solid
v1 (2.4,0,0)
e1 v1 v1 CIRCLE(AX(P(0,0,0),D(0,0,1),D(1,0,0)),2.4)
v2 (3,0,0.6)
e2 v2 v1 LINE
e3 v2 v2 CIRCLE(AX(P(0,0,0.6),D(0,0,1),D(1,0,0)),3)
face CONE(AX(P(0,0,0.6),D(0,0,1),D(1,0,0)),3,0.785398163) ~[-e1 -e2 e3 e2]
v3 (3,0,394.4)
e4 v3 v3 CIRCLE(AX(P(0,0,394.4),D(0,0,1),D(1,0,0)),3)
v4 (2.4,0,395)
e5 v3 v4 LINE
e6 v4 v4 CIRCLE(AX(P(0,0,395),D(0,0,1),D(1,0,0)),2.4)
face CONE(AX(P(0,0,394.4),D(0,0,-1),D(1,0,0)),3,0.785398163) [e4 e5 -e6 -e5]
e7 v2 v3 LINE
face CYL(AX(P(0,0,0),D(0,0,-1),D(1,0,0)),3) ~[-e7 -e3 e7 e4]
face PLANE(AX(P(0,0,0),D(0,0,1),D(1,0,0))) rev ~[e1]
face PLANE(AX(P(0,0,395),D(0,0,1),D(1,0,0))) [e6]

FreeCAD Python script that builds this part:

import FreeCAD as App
import Part
import Sketcher

V = App.Vector
Q = App.Units.Quantity


def edges_at(feature, points):
    """Names of the edges that pass closest to the given points."""
    edges = feature.Shape.Edges
    near = lambda p: min(range(len(edges)), key=lambda i: edges[i].distToShape(Part.Vertex(*p))[0])
    return sorted({f"Edge{near(p) + 1}" for p in points})

doc = App.newDocument("Part")
body = doc.addObject("PartDesign::Body", "Body")

# Sketch on XY plane
sketch1 = body.newObject("Sketcher::SketchObject", "Sketch")
sketch1.AttachmentSupport = (doc.getObject("XY_Plane"), [""])
sketch1.MapMode = "FlatFace"
sketch1.addGeometry(Part.Circle(V(0, 0, 0), V(0, 0, 1), 3), False)
sketch1.addConstraint([
    Sketcher.Constraint("Coincident", 0, 3, -1, 1),
    Sketcher.Constraint("Diameter", 0, Q("6 mm")),
])
pad1 = body.newObject("PartDesign::Pad", "Pad")
pad1.Profile = sketch1
pad1.Length = 395
doc.recompute()

chamfer = body.newObject("PartDesign::Chamfer", "Chamfer")
chamfer.Base = (pad1, edges_at(pad1, [(-3, 0, 395), (-3, 0, 0)]))
chamfer.Size = 0.6

doc.recompute()
